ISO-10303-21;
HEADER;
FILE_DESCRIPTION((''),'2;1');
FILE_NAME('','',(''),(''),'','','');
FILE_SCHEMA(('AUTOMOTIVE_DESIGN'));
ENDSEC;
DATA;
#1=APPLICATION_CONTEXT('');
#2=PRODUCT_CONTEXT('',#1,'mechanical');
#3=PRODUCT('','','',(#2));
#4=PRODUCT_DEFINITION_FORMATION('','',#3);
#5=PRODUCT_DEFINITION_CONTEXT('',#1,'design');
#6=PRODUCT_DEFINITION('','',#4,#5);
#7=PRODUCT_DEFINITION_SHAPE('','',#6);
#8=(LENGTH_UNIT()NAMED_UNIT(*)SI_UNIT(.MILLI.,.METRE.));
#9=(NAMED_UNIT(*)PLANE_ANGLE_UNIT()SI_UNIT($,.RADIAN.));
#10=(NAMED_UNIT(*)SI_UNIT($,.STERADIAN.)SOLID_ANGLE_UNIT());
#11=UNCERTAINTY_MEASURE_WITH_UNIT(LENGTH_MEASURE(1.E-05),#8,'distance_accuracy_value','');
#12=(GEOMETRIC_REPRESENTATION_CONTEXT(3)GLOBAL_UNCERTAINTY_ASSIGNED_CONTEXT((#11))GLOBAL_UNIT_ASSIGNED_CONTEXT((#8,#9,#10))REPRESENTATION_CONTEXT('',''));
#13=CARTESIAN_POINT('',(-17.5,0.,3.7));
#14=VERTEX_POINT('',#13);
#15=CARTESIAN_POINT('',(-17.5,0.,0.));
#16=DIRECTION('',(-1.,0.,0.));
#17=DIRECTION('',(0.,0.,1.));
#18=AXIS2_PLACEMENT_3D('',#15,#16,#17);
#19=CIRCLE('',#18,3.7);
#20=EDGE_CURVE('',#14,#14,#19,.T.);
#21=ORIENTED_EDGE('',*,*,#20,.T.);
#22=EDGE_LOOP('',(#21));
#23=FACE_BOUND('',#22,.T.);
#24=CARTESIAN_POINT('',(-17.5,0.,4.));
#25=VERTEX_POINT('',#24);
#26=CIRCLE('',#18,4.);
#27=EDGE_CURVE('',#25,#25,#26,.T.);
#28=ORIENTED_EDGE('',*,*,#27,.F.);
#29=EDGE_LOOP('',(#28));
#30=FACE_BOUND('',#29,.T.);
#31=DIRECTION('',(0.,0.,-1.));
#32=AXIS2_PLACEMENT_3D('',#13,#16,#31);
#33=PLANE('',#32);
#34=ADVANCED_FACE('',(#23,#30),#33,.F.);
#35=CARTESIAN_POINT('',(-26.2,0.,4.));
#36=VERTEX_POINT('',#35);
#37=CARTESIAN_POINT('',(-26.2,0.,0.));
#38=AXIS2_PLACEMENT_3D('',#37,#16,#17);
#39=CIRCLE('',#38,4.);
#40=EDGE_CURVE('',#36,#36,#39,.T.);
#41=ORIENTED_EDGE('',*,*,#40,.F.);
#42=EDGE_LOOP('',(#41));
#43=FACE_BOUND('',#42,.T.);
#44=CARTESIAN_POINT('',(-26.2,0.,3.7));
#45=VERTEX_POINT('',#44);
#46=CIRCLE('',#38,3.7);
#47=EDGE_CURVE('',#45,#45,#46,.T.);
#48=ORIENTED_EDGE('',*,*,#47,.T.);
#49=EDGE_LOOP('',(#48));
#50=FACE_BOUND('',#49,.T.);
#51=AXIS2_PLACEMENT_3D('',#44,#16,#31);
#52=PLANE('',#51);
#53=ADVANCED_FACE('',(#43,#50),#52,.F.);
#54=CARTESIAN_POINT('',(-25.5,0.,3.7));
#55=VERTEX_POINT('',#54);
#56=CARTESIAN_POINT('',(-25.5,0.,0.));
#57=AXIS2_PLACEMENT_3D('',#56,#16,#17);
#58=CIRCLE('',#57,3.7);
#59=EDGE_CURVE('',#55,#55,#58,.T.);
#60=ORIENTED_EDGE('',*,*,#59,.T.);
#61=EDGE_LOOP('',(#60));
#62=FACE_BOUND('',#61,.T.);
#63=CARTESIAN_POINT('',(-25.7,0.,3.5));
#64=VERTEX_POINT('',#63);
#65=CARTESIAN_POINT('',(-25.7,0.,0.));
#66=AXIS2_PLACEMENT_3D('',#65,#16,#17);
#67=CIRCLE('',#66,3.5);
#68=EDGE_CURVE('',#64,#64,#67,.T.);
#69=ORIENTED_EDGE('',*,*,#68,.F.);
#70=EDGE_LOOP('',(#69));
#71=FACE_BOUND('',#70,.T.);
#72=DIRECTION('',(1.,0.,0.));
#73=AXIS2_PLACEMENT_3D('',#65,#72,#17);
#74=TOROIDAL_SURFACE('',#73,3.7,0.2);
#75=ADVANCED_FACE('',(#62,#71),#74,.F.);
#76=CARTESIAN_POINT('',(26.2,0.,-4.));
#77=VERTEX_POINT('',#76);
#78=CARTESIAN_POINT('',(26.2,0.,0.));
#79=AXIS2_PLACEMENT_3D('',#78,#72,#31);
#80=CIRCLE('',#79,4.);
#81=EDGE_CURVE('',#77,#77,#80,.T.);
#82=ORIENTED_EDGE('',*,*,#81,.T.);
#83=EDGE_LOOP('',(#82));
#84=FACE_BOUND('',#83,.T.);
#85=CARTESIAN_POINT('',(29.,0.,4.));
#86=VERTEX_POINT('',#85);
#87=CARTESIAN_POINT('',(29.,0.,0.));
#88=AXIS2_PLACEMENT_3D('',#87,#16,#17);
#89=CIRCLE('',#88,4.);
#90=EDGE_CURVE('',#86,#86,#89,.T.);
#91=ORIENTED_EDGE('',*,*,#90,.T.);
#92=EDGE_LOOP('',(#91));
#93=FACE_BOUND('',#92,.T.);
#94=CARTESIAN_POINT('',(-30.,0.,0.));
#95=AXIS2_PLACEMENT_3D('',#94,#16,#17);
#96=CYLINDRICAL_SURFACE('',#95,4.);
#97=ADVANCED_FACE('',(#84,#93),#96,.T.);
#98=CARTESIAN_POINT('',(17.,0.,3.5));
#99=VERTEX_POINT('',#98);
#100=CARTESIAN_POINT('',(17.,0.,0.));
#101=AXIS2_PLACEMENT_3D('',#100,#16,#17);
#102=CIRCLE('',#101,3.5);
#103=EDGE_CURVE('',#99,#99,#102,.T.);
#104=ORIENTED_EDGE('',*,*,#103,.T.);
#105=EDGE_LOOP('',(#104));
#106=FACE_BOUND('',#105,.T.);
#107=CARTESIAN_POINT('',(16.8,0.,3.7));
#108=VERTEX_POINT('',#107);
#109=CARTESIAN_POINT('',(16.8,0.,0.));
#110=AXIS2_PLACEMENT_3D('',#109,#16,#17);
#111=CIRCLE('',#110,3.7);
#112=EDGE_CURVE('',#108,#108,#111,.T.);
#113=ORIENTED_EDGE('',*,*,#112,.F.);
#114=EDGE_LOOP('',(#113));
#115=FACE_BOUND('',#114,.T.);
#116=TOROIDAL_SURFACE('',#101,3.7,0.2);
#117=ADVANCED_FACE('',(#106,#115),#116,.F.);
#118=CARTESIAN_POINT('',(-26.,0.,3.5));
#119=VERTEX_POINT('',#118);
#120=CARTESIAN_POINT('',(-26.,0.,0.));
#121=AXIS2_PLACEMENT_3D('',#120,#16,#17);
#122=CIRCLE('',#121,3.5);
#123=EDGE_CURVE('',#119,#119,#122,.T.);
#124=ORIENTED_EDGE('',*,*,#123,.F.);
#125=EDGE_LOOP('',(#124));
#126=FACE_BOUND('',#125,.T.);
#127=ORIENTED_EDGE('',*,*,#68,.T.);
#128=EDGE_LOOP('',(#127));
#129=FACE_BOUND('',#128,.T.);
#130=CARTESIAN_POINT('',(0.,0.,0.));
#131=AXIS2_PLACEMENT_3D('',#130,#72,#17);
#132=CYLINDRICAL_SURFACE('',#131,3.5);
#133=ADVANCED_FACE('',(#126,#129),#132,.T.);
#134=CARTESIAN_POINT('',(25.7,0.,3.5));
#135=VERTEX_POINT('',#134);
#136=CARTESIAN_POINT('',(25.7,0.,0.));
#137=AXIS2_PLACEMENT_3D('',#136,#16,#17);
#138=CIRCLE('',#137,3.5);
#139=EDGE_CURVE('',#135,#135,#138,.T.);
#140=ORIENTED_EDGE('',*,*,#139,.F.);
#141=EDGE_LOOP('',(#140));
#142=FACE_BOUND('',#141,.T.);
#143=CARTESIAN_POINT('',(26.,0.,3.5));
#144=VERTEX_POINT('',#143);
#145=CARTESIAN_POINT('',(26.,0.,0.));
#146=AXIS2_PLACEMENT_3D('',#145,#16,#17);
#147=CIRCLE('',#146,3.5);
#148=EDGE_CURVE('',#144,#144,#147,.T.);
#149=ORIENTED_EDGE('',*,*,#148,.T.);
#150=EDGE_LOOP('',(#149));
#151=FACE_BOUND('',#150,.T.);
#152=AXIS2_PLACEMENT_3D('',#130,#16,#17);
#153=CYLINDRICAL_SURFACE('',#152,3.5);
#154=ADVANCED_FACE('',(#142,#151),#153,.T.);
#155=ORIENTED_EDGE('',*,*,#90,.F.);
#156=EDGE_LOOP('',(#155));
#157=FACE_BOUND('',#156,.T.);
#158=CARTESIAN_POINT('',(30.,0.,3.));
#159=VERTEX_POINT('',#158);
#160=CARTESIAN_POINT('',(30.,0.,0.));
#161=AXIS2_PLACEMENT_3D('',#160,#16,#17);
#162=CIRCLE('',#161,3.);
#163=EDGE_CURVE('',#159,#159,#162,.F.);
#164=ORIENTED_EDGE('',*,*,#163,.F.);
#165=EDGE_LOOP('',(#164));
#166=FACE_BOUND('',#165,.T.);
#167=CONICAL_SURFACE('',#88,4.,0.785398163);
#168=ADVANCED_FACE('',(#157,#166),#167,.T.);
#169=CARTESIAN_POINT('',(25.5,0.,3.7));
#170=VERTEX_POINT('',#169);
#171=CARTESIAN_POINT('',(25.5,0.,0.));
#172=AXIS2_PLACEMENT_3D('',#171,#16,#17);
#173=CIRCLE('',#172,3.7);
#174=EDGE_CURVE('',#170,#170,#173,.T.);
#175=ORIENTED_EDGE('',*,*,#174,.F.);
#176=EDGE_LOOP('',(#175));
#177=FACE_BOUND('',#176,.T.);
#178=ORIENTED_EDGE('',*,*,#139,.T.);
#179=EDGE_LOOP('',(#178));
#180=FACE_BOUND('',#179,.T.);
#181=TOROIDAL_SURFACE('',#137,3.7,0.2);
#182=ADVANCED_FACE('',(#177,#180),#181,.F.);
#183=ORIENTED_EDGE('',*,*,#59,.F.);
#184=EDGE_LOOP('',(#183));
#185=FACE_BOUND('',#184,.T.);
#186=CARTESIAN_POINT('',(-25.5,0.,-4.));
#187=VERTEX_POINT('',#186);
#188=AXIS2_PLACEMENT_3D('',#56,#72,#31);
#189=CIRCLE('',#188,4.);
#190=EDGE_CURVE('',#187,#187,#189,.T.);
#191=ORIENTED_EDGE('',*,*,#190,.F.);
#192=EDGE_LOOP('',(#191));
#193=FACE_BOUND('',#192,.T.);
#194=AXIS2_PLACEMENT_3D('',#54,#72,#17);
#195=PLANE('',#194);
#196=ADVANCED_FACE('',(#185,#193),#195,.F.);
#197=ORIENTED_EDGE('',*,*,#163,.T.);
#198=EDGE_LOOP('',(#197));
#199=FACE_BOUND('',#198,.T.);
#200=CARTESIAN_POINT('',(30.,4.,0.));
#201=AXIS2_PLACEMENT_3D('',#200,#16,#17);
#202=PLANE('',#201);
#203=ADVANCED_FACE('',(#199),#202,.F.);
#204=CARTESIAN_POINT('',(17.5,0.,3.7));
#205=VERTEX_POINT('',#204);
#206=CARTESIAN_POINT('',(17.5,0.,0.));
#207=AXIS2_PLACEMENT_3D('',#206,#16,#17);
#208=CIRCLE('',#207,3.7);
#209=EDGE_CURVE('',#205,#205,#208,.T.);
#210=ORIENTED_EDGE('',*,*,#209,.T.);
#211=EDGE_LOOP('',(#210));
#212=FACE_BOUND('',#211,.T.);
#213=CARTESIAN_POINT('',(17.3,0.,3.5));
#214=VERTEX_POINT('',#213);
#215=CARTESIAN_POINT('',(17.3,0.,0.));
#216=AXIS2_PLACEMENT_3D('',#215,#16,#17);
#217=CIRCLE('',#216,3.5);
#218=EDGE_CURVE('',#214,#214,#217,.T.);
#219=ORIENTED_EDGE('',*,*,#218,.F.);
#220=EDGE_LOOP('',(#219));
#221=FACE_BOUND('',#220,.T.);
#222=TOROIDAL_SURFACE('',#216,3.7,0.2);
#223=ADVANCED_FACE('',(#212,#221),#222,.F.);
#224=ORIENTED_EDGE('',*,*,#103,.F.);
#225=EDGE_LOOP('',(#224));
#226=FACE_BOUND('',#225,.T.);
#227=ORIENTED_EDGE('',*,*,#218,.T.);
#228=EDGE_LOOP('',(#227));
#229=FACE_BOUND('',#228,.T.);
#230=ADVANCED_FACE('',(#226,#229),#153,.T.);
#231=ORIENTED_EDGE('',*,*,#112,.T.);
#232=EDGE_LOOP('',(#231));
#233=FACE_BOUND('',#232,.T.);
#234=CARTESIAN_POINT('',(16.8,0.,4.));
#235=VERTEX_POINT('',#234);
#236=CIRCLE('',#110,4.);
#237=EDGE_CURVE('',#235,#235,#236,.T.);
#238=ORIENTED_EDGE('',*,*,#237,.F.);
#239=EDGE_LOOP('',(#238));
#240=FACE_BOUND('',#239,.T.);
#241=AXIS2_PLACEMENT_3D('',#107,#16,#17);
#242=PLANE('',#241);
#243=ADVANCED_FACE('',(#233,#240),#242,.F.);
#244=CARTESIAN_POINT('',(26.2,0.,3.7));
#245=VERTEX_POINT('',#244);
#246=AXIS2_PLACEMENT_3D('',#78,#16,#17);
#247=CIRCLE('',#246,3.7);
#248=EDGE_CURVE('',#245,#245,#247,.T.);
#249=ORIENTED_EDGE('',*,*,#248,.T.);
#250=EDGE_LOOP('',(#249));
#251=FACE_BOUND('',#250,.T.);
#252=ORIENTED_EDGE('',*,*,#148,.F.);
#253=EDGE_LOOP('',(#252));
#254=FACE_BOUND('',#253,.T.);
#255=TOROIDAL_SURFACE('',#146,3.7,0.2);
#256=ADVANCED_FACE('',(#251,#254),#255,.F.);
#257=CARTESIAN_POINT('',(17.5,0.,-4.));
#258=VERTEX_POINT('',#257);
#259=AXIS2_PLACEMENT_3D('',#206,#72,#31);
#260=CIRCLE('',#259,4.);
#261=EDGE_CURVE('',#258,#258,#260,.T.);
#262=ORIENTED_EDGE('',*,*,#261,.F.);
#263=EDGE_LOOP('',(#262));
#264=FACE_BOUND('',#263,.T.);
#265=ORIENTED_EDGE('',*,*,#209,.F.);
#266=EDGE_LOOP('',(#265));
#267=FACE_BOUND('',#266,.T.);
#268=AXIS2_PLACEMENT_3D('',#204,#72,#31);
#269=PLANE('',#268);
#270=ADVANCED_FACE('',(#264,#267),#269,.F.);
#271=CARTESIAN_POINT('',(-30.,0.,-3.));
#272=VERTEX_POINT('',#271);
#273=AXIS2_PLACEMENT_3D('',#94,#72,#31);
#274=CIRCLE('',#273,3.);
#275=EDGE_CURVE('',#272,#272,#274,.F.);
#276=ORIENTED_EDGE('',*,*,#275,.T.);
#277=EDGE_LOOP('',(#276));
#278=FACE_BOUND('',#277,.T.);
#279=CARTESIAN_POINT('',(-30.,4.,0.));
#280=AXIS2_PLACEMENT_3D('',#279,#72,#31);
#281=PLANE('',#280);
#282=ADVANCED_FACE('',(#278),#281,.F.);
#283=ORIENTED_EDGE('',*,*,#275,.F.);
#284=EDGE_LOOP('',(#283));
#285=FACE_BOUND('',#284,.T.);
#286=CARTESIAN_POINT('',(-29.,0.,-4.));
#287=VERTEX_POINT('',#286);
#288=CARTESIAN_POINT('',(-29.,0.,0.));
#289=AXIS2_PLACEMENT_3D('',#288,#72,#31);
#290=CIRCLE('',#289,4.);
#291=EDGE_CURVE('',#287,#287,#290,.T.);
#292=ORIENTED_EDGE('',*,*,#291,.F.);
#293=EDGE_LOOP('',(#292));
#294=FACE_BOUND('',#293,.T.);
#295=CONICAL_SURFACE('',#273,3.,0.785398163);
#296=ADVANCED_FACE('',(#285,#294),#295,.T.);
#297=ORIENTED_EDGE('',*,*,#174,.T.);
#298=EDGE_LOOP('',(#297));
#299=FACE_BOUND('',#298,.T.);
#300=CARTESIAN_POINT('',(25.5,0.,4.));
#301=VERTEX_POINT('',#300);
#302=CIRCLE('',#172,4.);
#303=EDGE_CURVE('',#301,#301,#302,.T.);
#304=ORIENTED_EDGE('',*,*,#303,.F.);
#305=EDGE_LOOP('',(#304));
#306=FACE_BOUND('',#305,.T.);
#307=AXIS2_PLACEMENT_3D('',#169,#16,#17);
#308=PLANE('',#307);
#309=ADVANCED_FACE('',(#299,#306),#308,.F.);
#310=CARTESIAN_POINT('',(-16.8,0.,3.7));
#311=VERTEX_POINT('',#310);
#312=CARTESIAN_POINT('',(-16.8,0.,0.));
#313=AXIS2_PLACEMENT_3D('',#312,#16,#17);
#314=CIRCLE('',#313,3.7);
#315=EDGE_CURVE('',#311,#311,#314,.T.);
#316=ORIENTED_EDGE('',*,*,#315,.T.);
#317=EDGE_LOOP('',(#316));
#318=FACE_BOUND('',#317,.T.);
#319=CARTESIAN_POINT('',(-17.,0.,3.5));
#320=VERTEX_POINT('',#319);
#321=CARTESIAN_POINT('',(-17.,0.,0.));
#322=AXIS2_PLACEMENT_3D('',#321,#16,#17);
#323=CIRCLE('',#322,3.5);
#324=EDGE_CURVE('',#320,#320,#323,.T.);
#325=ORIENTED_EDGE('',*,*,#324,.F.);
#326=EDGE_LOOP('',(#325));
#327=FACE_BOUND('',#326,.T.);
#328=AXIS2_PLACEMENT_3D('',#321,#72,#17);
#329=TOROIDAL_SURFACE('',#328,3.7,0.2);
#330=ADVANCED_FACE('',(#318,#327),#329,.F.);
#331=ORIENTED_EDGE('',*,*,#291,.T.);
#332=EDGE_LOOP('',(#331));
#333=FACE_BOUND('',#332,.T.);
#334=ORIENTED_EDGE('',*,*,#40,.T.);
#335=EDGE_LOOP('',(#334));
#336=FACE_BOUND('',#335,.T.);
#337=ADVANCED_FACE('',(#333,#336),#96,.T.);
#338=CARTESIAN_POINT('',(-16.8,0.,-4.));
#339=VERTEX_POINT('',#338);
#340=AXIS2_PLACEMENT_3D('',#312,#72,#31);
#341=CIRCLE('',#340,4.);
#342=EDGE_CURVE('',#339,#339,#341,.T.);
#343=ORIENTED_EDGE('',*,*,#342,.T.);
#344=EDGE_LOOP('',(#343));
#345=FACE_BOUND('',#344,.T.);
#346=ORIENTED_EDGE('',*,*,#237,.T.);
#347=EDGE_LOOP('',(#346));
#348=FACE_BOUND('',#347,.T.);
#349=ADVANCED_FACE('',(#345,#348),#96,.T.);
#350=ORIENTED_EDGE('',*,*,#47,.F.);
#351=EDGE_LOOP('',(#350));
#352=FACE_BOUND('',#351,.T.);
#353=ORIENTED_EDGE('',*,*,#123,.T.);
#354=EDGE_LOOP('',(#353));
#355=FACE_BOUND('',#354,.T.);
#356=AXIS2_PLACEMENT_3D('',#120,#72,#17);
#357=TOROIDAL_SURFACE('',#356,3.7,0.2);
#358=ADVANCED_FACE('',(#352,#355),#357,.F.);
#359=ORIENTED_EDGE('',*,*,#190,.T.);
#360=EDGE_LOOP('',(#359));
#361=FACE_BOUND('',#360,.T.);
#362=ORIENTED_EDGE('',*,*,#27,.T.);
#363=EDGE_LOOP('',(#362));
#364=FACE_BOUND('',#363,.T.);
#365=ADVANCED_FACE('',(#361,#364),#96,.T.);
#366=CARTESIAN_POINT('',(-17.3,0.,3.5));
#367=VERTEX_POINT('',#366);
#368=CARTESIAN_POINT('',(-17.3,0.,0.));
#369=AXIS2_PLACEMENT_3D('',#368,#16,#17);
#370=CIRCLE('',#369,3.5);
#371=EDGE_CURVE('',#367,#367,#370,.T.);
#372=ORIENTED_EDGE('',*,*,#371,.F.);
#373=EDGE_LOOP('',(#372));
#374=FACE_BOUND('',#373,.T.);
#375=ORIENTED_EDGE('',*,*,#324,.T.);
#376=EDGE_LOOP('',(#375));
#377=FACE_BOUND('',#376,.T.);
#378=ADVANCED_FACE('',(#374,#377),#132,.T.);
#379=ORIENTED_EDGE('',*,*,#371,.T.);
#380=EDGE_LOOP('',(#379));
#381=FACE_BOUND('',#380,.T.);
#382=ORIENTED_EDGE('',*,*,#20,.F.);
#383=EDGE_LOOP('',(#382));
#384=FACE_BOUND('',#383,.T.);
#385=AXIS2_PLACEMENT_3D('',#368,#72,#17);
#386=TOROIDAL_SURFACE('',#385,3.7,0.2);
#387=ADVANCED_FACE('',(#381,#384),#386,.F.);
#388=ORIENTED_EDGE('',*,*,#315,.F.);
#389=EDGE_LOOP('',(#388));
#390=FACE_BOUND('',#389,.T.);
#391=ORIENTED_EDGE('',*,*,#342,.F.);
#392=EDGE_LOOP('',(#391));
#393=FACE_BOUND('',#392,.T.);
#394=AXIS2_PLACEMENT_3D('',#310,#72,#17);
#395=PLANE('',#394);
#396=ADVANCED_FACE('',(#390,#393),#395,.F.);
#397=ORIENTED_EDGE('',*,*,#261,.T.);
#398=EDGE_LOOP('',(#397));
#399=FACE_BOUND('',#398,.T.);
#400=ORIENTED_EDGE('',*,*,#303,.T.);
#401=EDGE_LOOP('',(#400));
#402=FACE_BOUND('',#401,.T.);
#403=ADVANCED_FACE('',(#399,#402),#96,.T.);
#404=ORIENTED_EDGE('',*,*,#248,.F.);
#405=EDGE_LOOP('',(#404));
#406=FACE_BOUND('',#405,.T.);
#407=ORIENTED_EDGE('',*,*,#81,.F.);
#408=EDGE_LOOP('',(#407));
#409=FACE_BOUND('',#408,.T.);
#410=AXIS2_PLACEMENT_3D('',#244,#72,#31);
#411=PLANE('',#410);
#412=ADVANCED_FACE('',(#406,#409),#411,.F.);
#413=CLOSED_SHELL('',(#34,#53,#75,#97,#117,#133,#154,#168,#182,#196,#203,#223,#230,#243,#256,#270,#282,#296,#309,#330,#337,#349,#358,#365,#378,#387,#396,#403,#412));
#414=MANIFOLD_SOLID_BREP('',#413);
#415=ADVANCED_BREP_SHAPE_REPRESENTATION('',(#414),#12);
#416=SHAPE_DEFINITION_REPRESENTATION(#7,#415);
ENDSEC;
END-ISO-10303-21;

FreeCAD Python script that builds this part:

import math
import FreeCAD as App
import Part
import Sketcher

V = App.Vector


def edges_at(feature, points):
    """Names of the edges that pass closest to the given points."""
    edges = feature.Shape.Edges
    near = lambda p: min(range(len(edges)), key=lambda i: edges[i].distToShape(Part.Vertex(*p))[0])
    return sorted({f"Edge{near(p) + 1}" for p in points})


def add_polygon(sketch, points):
    """Adds a closed chain of lines whose ends are joined by coincident constraints."""
    first, n = sketch.GeometryCount, len(points)
    for a, b in zip(points, points[1:] + points[:1]):
        sketch.addGeometry(Part.LineSegment(App.Vector(*a, 0), App.Vector(*b, 0)), False)
    for i in range(n):
        sketch.addConstraint(Sketcher.Constraint("Coincident", first + i, 2, first + (i + 1) % n, 1))

doc = App.newDocument("Part")
params = doc.addObject("Spreadsheet::Sheet", "Params")
for row, (alias, value) in enumerate([
    ("sketch1_width", "60 mm"),
    ("sketch1_height", "4 mm"),
    ("revolution_angle", "360 deg"),
    ("chamfer_size", "1 mm"),
    ("sketch2_radius", "0.2 mm"),
    ("sketch2_width", "0.3 mm"),
    ("sketch2_height", "1.1 mm"),
    ("groove_angle", "360 deg"),
], start=1):
    params.set(f"A{row}", alias)
    params.set(f"B{row}", "=" + value)
    params.setAlias(f"B{row}", alias)

body = doc.addObject("PartDesign::Body", "Body")

# Sketch on XY plane
sketch1 = body.newObject("Sketcher::SketchObject", "Sketch")
sketch1.AttachmentSupport = (doc.getObject("XY_Plane"), [""])
sketch1.MapMode = "FlatFace"
add_polygon(sketch1, [(-30, 4), (-30, 0), (30, 0), (30, 4)])  # lines 0-3
sketch1.addConstraint([
    Sketcher.Constraint("Vertical", 0),
    Sketcher.Constraint("Horizontal", 1),
    Sketcher.Constraint("Vertical", 2),
    Sketcher.Constraint("Horizontal", 3),
    Sketcher.Constraint("Symmetric", 0, 2, 1, 2, -1, 1),
    Sketcher.Constraint("DistanceX", 1, 1, 1, 2, 60.0),
    Sketcher.Constraint("DistanceY", 0, 2, 0, 1, 4.0),
])
sketch1.setExpression("Constraints[9]", "Params.sketch1_width")
sketch1.setExpression("Constraints[10]", "Params.sketch1_height")
revolution = body.newObject("PartDesign::Revolution", "Revolution")
revolution.Profile = sketch1
revolution.ReferenceAxis = (sketch1, ["H_Axis"])
revolution.setExpression("Angle", "Params.revolution_angle")
doc.recompute()

chamfer = body.newObject("PartDesign::Chamfer", "Chamfer")
chamfer.Base = (revolution, edges_at(revolution, [(-30, 0, -4), (30, 0, -4)]))
chamfer.setExpression("Size", "Params.chamfer_size")

# Sketch on XZ plane
sketch2 = body.newObject("Sketcher::SketchObject", "Sketch001")
sketch2.AttachmentSupport = (doc.getObject("XZ_Plane"), [""])
sketch2.MapMode = "FlatFace"
sketch2.addGeometry([
    Part.LineSegment(V(26, 3.5, 0), V(25.7, 3.5, 0)),  # 0
    Part.ArcOfCircle(Part.Circle(V(25.7, 3.7, 0), V(0, 0, 1), 0.2), math.radians(-180), math.radians(-90)),  # 1
    Part.LineSegment(V(25.5, 3.7, 0), V(25.5, 4.8, 0)),  # 2
    Part.LineSegment(V(25.5, 4.8, 0), V(26.2, 4.8, 0)),  # 3
    Part.LineSegment(V(26.2, 4.8, 0), V(26.2, 3.7, 0)),  # 4
    Part.ArcOfCircle(Part.Circle(V(26, 3.7, 0), V(0, 0, 1), 0.2), math.radians(-90), math.radians(0)),  # 5
    Part.LineSegment(V(17.3, 3.5, 0), V(17, 3.5, 0)),  # 6
    Part.ArcOfCircle(Part.Circle(V(17, 3.7, 0), V(0, 0, 1), 0.2), math.radians(-180), math.radians(-90)),  # 7
    Part.LineSegment(V(16.8, 3.7, 0), V(16.8, 4.8, 0)),  # 8
    Part.LineSegment(V(16.8, 4.8, 0), V(17.5, 4.8, 0)),  # 9
    Part.LineSegment(V(17.5, 4.8, 0), V(17.5, 3.7, 0)),  # 10
    Part.ArcOfCircle(Part.Circle(V(17.3, 3.7, 0), V(0, 0, 1), 0.2), math.radians(-90), math.radians(0)),  # 11
], False)
sketch2.addConstraint([
    Sketcher.Constraint("Tangent", 0, 2, 1, 2),
    Sketcher.Constraint("Tangent", 1, 1, 2, 1),
    Sketcher.Constraint("Coincident", 2, 2, 3, 1),
    Sketcher.Constraint("Coincident", 3, 2, 4, 1),
    Sketcher.Constraint("Tangent", 4, 2, 5, 2),
    Sketcher.Constraint("Tangent", 5, 1, 0, 1),
    Sketcher.Constraint("Tangent", 6, 2, 7, 2),
    Sketcher.Constraint("Tangent", 7, 1, 8, 1),
    Sketcher.Constraint("Coincident", 8, 2, 9, 1),
    Sketcher.Constraint("Coincident", 9, 2, 10, 1),
    Sketcher.Constraint("Tangent", 10, 2, 11, 2),
    Sketcher.Constraint("Tangent", 11, 1, 6, 1),
    Sketcher.Constraint("Horizontal", 0),
    Sketcher.Constraint("Vertical", 2),
    Sketcher.Constraint("Horizontal", 3),
    Sketcher.Constraint("Vertical", 4),
    Sketcher.Constraint("Horizontal", 6),
    Sketcher.Constraint("Vertical", 8),
    Sketcher.Constraint("Horizontal", 9),
    Sketcher.Constraint("Vertical", 10),
    Sketcher.Constraint("Equal", 1, 5),
    Sketcher.Constraint("Equal", 5, 7),
    Sketcher.Constraint("Equal", 7, 11),
    Sketcher.Constraint("Horizontal", 5, 3, 7, 3),
    Sketcher.Constraint("Horizontal", 3, 2, 8, 2),
    Sketcher.Constraint("Equal", 0, 6),
    Sketcher.Constraint("Radius", 1, 0.2),
    Sketcher.Constraint("DistanceX", 0, 2, 0, 1, 0.3),
    Sketcher.Constraint("DistanceY", 2, 1, 2, 2, 1.1),
    Sketcher.Constraint("DistanceX", -1, 1, 5, 3, 26.0),
    Sketcher.Constraint("DistanceX", -1, 1, 7, 3, 17.0),
    Sketcher.Constraint("DistanceY", -1, 1, 1, 3, 3.7),
])
sketch2.setExpression("Constraints[26]", "Params.sketch2_radius")
sketch2.setExpression("Constraints[27]", "Params.sketch2_width")
sketch2.setExpression("Constraints[28]", "Params.sketch2_height")
groove = body.newObject("PartDesign::Groove", "Groove")
groove.Profile = sketch2
groove.ReferenceAxis = (sketch2, ["H_Axis"])
groove.setExpression("Angle", "Params.groove_angle")
doc.recompute()

mirrored = body.newObject("PartDesign::Mirrored", "Mirrored")
mirrored.Originals = [groove]
mirrored.MirrorPlane = (doc.getObject("YZ_Plane"), [""])
body.Tip = mirrored

doc.recompute()
